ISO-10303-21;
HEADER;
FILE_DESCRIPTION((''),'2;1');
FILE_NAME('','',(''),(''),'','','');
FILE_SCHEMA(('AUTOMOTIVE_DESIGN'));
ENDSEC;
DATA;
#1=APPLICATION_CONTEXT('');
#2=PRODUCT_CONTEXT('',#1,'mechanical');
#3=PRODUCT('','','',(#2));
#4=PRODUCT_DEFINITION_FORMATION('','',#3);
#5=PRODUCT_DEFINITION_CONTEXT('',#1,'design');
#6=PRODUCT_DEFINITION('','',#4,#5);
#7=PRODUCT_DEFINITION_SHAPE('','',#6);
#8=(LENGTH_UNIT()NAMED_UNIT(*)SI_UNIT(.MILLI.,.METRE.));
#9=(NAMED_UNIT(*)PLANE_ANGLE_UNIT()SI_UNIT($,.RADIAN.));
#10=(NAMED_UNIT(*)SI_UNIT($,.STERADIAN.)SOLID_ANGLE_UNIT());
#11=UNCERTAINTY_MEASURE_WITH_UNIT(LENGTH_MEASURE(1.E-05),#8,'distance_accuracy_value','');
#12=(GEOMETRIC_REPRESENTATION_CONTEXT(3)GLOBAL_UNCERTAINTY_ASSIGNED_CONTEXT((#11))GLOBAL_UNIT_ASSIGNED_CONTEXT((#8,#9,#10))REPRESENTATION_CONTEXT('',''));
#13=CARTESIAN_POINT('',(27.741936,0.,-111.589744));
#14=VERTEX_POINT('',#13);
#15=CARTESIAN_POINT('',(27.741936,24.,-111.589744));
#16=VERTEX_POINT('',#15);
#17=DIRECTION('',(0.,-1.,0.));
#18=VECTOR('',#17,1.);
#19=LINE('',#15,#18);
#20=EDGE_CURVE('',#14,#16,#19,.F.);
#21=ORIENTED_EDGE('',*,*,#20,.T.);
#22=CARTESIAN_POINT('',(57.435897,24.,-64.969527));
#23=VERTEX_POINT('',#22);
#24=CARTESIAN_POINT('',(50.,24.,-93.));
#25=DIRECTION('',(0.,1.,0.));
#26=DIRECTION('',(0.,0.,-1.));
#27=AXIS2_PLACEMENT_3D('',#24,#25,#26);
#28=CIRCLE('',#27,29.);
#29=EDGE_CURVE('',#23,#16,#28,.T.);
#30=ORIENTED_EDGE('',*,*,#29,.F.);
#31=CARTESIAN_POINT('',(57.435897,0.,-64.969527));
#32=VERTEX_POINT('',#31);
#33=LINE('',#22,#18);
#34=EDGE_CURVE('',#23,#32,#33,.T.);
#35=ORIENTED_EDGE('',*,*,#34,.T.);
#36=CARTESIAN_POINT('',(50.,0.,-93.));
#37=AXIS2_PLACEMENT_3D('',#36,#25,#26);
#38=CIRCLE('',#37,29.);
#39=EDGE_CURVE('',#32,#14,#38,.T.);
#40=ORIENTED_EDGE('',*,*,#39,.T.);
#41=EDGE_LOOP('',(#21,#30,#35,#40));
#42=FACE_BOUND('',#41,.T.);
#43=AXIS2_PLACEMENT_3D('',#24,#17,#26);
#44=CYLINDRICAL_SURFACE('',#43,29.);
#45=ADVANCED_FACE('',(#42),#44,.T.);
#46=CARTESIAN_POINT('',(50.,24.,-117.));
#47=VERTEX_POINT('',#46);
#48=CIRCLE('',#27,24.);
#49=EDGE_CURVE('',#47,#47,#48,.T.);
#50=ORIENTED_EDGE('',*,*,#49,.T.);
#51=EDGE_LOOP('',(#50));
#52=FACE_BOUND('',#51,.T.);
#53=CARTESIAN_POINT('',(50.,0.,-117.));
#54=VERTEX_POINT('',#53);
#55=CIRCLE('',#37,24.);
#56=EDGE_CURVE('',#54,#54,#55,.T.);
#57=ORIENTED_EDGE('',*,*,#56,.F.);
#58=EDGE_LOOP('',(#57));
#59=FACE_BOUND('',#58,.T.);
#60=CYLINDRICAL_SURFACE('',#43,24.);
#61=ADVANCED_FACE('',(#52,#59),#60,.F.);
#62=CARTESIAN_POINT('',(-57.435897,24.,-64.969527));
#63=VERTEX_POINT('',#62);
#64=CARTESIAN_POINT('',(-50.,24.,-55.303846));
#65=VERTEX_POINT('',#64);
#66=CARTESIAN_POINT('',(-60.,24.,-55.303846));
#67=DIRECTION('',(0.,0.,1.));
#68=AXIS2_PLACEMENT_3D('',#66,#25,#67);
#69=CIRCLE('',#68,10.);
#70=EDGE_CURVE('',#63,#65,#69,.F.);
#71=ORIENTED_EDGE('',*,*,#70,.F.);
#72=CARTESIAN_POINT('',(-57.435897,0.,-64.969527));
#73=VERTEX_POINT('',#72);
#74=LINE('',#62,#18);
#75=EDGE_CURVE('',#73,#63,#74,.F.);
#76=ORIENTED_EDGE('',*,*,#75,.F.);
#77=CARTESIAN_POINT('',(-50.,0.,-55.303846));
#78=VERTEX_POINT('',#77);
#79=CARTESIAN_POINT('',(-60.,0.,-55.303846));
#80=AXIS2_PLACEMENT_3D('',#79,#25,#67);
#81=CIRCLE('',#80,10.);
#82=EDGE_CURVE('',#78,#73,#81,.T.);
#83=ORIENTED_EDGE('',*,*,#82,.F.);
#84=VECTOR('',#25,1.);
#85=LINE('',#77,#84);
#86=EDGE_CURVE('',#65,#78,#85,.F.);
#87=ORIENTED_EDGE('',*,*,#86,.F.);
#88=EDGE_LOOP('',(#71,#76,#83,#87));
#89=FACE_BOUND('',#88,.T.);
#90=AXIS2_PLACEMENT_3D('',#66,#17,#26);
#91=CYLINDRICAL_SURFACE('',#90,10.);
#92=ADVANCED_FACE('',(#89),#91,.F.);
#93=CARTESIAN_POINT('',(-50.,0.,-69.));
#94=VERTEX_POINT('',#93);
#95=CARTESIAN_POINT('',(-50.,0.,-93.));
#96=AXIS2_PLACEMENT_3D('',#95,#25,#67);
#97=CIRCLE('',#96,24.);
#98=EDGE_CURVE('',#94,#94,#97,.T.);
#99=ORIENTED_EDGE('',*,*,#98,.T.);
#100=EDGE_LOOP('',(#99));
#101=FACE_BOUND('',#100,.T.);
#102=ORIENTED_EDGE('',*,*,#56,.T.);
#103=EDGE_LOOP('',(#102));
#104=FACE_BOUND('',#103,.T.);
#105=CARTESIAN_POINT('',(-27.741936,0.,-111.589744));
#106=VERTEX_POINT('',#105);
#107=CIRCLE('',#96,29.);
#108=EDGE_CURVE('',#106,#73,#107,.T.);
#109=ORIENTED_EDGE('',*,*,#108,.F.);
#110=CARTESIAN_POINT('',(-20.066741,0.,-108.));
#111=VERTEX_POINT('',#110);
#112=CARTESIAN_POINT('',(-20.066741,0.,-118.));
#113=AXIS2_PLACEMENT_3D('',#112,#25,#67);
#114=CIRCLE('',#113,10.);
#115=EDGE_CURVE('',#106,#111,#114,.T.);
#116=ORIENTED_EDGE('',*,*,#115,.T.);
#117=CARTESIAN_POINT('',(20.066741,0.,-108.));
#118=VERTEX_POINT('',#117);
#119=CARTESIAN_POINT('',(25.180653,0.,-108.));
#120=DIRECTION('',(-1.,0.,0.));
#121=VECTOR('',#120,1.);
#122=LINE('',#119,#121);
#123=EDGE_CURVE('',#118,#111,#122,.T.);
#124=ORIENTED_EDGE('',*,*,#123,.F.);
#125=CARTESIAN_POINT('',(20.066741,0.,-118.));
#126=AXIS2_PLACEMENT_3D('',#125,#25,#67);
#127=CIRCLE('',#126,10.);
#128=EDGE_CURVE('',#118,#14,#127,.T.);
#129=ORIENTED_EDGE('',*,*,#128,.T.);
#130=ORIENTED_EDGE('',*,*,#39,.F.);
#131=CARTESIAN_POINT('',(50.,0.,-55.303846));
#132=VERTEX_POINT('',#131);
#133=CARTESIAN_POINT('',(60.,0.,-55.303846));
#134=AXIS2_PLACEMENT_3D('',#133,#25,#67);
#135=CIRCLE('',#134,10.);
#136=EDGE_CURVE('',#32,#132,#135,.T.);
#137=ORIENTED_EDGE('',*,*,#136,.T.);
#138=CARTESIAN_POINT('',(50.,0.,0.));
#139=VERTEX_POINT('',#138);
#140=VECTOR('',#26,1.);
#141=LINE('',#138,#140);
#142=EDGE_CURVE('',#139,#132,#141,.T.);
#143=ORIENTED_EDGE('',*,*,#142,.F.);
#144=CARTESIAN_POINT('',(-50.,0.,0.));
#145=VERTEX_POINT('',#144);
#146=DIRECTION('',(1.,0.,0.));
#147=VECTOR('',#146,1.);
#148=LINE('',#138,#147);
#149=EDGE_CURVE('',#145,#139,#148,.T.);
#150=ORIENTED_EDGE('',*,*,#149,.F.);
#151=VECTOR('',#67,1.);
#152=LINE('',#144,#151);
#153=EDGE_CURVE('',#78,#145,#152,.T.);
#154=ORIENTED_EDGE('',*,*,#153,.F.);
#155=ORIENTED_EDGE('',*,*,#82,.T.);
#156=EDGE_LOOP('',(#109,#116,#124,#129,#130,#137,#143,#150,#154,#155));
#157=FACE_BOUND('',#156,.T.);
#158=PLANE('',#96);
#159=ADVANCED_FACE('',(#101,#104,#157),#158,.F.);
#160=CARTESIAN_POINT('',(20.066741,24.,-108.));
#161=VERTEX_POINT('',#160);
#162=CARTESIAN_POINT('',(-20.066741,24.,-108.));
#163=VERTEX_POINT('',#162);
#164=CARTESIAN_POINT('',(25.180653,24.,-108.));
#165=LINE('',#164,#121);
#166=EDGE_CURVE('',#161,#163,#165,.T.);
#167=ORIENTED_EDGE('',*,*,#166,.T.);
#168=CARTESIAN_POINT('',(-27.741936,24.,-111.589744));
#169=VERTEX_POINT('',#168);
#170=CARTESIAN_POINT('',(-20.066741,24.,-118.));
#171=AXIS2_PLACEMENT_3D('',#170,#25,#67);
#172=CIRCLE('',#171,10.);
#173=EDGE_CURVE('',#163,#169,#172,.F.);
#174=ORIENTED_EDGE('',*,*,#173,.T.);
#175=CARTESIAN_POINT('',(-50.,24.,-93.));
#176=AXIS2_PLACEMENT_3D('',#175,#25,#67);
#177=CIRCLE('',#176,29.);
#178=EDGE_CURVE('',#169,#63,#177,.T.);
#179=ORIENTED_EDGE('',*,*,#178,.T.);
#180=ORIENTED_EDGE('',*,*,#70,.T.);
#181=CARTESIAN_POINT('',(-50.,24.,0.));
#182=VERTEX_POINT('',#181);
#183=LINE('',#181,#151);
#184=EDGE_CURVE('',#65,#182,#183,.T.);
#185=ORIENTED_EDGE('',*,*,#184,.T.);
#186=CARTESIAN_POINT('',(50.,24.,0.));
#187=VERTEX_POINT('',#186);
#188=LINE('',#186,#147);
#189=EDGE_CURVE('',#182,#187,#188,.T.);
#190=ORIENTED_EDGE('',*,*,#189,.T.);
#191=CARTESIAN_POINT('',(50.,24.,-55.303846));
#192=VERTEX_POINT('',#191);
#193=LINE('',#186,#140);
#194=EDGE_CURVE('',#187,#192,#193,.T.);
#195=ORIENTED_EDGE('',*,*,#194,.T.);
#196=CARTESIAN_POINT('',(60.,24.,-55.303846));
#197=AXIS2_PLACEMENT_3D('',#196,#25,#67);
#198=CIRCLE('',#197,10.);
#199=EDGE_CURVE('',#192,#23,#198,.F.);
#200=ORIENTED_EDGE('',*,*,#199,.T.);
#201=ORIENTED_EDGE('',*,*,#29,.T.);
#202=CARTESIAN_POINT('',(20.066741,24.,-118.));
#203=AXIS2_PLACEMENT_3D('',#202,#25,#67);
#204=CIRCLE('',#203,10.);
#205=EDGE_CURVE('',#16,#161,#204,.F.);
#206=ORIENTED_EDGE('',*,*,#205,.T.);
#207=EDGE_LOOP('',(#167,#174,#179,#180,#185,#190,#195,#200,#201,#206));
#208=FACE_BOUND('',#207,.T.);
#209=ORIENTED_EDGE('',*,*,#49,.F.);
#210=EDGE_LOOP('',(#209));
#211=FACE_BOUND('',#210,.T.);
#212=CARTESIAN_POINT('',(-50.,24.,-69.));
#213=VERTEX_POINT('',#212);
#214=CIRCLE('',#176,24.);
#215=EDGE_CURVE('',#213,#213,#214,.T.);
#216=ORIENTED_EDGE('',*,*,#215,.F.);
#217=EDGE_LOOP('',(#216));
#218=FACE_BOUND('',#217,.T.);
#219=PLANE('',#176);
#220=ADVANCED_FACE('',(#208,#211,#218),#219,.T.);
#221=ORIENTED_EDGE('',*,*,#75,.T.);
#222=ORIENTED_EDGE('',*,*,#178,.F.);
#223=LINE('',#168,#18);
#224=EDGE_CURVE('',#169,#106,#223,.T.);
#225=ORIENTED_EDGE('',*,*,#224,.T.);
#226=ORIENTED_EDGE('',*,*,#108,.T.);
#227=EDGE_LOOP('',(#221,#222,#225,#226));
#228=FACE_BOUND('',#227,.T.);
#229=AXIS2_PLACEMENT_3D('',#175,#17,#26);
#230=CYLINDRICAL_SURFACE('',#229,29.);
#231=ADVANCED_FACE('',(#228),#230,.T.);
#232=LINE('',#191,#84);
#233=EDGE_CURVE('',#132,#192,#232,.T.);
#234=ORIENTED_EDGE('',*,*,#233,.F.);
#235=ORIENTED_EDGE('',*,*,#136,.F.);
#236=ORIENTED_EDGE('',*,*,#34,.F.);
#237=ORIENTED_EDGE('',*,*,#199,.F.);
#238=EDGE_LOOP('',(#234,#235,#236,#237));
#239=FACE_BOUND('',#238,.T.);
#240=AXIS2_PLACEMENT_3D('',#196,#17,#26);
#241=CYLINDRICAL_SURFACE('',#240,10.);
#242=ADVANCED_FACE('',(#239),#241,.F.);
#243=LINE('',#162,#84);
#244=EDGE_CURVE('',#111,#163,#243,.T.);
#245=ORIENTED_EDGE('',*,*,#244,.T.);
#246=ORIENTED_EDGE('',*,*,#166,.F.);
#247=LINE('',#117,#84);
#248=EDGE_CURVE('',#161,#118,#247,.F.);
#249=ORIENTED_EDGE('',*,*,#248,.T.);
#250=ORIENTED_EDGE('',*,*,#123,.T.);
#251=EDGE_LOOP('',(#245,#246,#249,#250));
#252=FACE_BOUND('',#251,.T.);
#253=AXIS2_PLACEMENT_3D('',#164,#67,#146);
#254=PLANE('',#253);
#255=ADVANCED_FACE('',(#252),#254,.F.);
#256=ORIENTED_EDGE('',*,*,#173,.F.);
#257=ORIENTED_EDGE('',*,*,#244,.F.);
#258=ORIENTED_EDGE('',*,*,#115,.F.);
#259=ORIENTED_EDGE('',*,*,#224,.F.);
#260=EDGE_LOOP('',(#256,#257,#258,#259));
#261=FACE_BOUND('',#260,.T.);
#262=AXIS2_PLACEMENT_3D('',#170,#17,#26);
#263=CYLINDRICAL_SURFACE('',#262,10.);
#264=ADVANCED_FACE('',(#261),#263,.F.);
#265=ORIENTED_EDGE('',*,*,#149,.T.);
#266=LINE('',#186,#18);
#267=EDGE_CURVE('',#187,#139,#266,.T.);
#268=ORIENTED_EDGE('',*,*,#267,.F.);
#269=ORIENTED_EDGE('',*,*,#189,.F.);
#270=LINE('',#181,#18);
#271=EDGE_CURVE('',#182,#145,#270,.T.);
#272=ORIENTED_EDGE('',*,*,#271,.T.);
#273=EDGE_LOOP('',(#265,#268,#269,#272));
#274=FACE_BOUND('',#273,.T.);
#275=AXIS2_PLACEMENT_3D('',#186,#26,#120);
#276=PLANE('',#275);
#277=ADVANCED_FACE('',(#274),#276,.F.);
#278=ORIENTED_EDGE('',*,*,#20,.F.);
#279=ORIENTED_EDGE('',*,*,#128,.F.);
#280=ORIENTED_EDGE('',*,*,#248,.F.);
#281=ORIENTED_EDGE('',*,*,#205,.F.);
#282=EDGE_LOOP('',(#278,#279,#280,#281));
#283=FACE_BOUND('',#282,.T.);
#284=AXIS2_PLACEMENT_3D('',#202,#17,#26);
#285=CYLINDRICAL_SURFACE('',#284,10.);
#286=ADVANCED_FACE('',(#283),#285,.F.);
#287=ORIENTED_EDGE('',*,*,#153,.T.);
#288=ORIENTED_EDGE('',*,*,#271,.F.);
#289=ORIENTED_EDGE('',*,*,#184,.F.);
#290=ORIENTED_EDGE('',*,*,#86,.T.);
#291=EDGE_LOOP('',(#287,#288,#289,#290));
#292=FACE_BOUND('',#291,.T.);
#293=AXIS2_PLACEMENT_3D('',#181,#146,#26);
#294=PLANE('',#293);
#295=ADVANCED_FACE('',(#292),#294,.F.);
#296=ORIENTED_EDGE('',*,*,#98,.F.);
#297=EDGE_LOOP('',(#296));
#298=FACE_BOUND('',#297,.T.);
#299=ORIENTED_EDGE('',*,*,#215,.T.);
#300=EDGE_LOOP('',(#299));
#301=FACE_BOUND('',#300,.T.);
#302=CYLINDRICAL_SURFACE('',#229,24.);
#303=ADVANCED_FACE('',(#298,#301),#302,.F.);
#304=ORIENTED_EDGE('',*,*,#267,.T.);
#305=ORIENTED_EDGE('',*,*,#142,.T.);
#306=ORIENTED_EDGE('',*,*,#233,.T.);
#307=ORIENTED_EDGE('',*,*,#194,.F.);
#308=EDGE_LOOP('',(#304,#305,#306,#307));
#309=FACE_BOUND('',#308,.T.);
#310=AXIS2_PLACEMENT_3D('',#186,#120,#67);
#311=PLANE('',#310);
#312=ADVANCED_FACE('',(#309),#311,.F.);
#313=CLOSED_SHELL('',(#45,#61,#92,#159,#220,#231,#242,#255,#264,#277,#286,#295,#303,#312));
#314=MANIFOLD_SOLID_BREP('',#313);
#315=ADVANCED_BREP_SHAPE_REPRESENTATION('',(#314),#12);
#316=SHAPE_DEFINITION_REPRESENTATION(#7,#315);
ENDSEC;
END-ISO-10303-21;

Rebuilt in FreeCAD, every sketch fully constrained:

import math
import FreeCAD as App
import Part
import Sketcher
from FreeCAD import Vector
Q = App.Units.Quantity


def edges_at(feature, points):
    """Names of the edges that pass closest to the given points."""
    edges = feature.Shape.Edges
    near = lambda p: min(range(len(edges)), key=lambda i: edges[i].distToShape(Part.Vertex(*p))[0])
    return sorted({f"Edge{near(p) + 1}" for p in points})

doc = App.newDocument("Part")
params = doc.addObject("Spreadsheet::Sheet", "Params")
for row, (alias, value) in enumerate([
    ("sketch1_diameter", "48 mm"),
    ("sketch1_radius", "29 mm"),
    ("sketch1_width", "100 mm"),
    ("sketch1_height", "64 mm"),
    ("pad1_length", "24 mm"),
    ("fillet_radius", "10 mm"),
], start=1):
    params.set(f"A{row}", alias)
    params.set(f"B{row}", "=" + value)
    params.setAlias(f"B{row}", alias)

body = doc.addObject("PartDesign::Body", "Body")

sketch1 = doc.addObject("Sketcher::SketchObject", "Sketch")
body.addObject(sketch1)
sketch1.AttachmentSupport = (doc.XZ_Plane, [""])
sketch1.MapMode = "FlatFace"
sketch1.addGeometry([
    Part.LineSegment(Vector(-50, 0, 0), Vector(50, 0, 0)),
    Part.LineSegment(Vector(50, 0, 0), Vector(50, -64, 0)),
    Part.ArcOfCircle(Part.Circle(Vector(50, -93, 0), Vector(0, 0, 1), 29), math.radians(-148.85261), math.radians(90)),
    Part.LineSegment(Vector(25.180653, -108, 0), Vector(-25.180653, -108, 0)),
    Part.ArcOfCircle(Part.Circle(Vector(-50, -93, 0), Vector(0, 0, 1), 29), math.radians(90), math.radians(328.85261)),
    Part.LineSegment(Vector(-50, -64, 0), Vector(-50, 0, 0)),
    Part.Circle(Vector(50, -93, 0), Vector(0, 0, 1), 24),
    Part.Circle(Vector(-50, -93, 0), Vector(0, 0, 1), 24),
], False)
sketch1.addConstraint([
    Sketcher.Constraint("Coincident", 0, 2, 1, 1),
    Sketcher.Constraint("Coincident", 1, 2, 2, 2),
    Sketcher.Constraint("Coincident", 2, 1, 3, 1),
    Sketcher.Constraint("Coincident", 3, 2, 4, 2),
    Sketcher.Constraint("Coincident", 4, 1, 5, 1),
    Sketcher.Constraint("Coincident", 5, 2, 0, 1),
    Sketcher.Constraint("Horizontal", 0),
    Sketcher.Constraint("Vertical", 1),
    Sketcher.Constraint("Horizontal", 3),
    Sketcher.Constraint("Vertical", 5),
    Sketcher.Constraint("Coincident", 6, 3, 2, 3),
    Sketcher.Constraint("Coincident", 7, 3, 4, 3),
    Sketcher.Constraint("Equal", 2, 4),
    Sketcher.Constraint("Equal", 6, 7),
    Sketcher.Constraint("Symmetric", 0, 2, 5, 2, -1, 1),
    Sketcher.Constraint("Symmetric", 2, 3, 4, 3, -2),
    Sketcher.Constraint("Vertical", 6, 3, 0, 2),
    Sketcher.Constraint("Diameter", 6, Q("48 mm")),
    Sketcher.Constraint("Radius", 2, Q("29 mm")),
    Sketcher.Constraint("DistanceX", 0, 1, 0, 2, Q("100 mm")),
    Sketcher.Constraint("DistanceY", 1, 2, 1, 1, Q("64 mm")),
    Sketcher.Constraint("DistanceY", 2, 1, -1, 1, Q("108 mm")),
])
sketch1.setExpression("Constraints[17]", "Params.sketch1_diameter")
sketch1.setExpression("Constraints[18]", "Params.sketch1_radius")
sketch1.setExpression("Constraints[19]", "Params.sketch1_width")
sketch1.setExpression("Constraints[20]", "Params.sketch1_height")
pad1 = doc.addObject("PartDesign::Pad", "Pad")
body.addObject(pad1)
pad1.Profile = sketch1
pad1.setExpression("Length", "Params.pad1_length")
pad1.Reversed = True
doc.recompute()

fillet = doc.addObject("PartDesign::Fillet", "Fillet")
body.addObject(fillet)
fillet.Base = (pad1, edges_at(pad1, [
    (-50, 12, -64),
    (-25.181, 12, -108),
    (25.181, 12, -108),
    (50, 12, -64),
]))
fillet.setExpression("Radius", "Params.fillet_radius")

doc.recompute()
